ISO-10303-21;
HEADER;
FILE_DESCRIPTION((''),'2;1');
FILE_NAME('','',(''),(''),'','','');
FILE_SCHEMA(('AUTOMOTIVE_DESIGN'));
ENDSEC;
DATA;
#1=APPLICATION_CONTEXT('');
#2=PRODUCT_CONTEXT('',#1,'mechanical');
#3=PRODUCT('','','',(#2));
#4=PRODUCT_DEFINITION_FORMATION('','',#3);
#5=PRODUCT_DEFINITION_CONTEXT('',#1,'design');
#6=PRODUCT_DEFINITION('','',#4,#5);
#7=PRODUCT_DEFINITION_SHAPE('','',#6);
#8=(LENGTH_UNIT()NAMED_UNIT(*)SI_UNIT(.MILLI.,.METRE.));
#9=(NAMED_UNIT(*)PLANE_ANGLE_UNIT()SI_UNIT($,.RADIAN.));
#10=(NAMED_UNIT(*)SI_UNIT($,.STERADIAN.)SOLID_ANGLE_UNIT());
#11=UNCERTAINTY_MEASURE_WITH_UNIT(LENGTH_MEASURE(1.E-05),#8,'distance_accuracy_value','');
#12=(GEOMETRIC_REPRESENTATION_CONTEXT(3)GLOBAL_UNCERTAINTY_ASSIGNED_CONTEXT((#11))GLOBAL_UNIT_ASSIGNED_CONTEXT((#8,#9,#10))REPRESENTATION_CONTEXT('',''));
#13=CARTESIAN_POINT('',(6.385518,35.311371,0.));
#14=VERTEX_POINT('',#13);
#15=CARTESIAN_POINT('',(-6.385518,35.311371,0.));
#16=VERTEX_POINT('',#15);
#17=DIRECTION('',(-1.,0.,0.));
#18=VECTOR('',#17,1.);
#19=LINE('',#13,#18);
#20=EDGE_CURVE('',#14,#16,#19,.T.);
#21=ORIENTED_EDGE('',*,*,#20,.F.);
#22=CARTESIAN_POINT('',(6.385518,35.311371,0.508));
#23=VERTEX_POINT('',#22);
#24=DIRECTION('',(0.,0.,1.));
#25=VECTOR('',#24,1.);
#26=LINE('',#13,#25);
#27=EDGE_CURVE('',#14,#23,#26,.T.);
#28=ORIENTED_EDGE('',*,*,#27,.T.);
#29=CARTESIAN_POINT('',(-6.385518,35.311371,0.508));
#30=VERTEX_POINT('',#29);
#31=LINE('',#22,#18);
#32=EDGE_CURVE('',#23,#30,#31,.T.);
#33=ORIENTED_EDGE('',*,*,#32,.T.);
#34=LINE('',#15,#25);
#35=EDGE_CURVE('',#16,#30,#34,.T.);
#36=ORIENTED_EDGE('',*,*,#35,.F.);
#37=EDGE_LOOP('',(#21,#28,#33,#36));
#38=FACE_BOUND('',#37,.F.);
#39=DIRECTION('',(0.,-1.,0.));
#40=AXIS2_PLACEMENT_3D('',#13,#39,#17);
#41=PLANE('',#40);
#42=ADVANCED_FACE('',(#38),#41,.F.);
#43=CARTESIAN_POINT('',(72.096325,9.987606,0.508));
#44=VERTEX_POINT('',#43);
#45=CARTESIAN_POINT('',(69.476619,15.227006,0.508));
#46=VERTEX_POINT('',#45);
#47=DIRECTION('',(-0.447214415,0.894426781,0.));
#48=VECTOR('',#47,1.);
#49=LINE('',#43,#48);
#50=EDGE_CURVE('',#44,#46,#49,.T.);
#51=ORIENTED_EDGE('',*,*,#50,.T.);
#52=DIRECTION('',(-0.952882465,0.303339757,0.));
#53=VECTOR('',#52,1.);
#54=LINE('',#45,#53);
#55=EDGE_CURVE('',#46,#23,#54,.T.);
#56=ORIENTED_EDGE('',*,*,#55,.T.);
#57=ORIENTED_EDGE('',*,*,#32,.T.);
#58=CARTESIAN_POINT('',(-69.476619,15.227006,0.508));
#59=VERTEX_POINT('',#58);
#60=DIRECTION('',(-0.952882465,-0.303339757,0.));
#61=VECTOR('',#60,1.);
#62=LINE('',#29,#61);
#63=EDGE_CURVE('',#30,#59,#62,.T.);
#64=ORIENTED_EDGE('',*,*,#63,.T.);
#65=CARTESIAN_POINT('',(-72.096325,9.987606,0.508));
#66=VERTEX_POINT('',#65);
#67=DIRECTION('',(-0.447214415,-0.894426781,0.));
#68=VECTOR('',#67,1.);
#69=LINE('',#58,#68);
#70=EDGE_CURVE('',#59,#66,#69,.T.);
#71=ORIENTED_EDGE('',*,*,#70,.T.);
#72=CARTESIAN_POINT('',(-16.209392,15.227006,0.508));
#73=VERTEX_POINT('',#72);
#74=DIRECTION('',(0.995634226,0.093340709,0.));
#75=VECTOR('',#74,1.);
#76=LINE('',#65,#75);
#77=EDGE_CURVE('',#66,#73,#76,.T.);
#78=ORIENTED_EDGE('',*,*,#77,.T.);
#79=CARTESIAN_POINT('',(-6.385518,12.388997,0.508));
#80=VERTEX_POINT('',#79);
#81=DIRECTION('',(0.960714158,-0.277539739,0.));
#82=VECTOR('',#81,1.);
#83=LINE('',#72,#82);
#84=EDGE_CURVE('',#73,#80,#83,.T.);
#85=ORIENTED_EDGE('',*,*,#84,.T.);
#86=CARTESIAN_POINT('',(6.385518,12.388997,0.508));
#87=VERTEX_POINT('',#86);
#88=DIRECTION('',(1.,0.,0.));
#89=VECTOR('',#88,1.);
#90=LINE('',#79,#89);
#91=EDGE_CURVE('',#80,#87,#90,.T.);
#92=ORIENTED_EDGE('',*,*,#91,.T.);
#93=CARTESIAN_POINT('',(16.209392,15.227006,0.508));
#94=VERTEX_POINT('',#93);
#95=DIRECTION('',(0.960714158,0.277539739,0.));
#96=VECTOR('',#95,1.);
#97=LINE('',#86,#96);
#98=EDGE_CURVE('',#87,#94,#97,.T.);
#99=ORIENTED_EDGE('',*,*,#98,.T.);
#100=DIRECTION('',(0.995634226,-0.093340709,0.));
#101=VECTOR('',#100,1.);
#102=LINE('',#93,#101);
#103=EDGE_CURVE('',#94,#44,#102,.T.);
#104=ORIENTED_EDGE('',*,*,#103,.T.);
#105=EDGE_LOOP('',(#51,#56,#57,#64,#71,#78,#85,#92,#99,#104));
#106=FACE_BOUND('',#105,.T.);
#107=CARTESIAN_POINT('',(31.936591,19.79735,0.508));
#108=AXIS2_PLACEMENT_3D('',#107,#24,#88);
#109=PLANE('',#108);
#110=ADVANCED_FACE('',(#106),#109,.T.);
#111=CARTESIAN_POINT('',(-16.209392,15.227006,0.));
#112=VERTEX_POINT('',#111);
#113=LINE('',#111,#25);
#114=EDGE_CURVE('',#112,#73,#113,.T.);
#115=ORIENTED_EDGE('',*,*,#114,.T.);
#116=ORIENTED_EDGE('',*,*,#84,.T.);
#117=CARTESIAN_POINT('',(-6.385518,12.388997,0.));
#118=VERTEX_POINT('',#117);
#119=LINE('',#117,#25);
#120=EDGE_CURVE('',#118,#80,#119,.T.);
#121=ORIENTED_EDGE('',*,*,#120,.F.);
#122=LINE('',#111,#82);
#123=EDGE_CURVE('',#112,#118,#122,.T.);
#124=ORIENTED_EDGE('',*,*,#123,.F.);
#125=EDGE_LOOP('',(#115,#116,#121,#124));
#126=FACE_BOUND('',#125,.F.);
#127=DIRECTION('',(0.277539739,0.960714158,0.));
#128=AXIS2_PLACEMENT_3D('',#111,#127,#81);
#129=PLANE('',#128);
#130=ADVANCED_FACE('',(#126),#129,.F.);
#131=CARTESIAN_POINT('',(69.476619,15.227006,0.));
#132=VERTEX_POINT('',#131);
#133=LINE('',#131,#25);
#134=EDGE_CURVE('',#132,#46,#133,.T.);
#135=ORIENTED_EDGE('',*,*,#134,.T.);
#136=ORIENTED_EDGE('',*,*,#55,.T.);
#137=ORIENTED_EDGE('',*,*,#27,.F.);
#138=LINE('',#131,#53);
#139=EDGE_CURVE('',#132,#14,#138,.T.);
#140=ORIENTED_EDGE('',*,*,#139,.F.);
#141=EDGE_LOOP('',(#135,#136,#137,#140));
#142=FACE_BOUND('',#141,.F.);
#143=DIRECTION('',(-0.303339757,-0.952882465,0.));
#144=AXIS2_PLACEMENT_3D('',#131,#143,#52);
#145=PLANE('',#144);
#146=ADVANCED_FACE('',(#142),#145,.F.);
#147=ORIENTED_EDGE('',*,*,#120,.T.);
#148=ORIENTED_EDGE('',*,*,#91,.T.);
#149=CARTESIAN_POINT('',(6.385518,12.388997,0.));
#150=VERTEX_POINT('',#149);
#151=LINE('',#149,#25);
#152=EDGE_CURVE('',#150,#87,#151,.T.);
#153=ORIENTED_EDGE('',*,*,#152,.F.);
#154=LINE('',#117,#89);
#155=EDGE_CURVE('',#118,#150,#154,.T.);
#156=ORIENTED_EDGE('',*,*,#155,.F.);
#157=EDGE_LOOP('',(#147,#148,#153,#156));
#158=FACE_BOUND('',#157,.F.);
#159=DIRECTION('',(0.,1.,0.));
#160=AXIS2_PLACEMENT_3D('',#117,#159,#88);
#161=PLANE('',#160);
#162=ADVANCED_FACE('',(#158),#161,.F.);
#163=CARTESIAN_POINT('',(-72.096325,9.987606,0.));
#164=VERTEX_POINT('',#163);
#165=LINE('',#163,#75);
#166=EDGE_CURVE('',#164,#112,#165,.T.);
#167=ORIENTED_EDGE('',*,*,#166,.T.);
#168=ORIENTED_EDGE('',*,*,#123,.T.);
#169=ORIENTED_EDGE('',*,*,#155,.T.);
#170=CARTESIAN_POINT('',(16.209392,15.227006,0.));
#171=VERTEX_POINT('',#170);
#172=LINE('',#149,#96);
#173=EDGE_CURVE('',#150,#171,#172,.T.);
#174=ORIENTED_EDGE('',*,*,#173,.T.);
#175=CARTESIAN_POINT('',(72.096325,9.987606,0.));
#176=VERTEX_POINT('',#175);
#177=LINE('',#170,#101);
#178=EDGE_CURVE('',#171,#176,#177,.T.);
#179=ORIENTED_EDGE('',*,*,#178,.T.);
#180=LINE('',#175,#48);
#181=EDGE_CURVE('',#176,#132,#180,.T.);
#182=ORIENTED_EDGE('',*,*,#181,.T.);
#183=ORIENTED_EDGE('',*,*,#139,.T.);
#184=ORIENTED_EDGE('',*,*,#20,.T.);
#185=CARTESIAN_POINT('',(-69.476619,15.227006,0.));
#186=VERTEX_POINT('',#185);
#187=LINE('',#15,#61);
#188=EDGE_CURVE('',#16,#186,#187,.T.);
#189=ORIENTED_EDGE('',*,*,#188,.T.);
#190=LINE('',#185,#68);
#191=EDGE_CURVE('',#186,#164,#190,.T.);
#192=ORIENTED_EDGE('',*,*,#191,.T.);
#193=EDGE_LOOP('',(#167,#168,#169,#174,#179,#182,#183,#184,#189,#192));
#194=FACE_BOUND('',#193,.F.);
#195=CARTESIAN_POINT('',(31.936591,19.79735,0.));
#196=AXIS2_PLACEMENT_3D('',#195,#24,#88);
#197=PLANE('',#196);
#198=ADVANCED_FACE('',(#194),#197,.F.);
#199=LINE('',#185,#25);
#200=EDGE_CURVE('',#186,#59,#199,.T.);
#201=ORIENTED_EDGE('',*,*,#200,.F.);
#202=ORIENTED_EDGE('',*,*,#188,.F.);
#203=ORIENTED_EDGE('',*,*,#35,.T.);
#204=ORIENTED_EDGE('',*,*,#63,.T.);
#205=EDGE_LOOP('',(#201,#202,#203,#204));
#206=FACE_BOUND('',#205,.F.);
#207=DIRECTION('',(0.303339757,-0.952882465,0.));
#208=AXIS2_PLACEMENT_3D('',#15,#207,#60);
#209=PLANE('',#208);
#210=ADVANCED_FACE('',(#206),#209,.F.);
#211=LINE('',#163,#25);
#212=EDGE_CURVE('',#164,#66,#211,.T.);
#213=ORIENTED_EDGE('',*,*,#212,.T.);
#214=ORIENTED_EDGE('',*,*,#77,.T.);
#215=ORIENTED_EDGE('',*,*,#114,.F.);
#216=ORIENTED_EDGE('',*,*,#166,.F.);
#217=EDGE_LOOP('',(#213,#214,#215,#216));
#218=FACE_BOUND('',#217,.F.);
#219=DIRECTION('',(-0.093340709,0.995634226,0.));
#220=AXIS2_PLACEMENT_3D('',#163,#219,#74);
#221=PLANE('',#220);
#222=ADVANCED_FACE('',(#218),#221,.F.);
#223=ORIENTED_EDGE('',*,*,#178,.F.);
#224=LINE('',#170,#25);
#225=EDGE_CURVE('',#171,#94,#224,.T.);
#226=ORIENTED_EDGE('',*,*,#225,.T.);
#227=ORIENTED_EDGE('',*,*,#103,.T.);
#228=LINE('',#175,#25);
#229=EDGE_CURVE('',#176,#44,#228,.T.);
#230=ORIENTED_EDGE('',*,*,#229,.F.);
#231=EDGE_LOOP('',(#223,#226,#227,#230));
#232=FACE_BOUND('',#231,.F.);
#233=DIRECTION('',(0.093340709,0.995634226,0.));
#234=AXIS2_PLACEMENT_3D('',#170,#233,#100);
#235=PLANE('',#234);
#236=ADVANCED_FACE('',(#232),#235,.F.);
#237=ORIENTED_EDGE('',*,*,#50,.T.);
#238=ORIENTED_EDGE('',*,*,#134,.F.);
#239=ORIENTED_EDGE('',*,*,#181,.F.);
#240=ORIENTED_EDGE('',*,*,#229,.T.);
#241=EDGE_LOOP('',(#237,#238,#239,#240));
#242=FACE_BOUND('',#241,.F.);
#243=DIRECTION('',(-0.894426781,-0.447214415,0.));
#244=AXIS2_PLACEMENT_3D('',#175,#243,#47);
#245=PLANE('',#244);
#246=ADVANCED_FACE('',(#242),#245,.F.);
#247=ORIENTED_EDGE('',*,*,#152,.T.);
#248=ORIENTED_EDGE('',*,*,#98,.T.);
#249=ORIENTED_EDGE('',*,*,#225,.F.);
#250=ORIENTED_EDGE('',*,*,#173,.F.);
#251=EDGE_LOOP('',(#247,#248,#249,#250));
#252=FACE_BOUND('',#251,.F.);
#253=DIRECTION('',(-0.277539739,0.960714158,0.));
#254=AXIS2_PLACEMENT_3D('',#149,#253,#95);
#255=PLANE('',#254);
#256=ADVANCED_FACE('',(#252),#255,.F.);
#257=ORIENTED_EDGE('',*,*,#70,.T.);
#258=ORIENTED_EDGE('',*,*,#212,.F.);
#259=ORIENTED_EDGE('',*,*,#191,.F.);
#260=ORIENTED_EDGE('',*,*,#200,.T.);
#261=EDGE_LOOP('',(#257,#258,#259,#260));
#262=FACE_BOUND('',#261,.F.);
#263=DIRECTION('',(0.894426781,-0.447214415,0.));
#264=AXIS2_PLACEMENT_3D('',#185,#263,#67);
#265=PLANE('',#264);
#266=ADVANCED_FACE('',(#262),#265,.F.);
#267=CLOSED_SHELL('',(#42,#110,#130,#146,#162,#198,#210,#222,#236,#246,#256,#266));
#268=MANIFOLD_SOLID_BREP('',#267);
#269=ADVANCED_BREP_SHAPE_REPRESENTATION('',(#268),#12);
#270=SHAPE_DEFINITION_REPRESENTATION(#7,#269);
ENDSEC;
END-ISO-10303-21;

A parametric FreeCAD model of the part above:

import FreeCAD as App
import Part
import Sketcher

V = App.Vector
Q = App.Units.Quantity

doc = App.newDocument("Part")
body = doc.addObject("PartDesign::Body", "Body")

sketch1 = doc.addObject("Sketcher::SketchObject", "Sketch")
body.addObject(sketch1)
sketch1.AttachmentSupport = (doc.XY_Plane, [""])
sketch1.MapMode = "FlatFace"
sketch1.addGeometry([
    Part.LineSegment(V(6, 12, 0), V(16, 15, 0)),
    Part.LineSegment(V(16, 15, 0), V(72, 10, 0)),
    Part.LineSegment(V(72, 10, 0), V(69, 15, 0)),
    Part.LineSegment(V(69, 15, 0), V(6, 35, 0)),
    Part.LineSegment(V(6, 35, 0), V(-6, 35, 0)),
    Part.LineSegment(V(-6, 35, 0), V(-69, 15, 0)),
    Part.LineSegment(V(-69, 15, 0), V(-72, 10, 0)),
    Part.LineSegment(V(-72, 10, 0), V(-16, 15, 0)),
    Part.LineSegment(V(-16, 15, 0), V(-6, 12, 0)),
    Part.LineSegment(V(-6, 12, 0), V(6, 12, 0)),
], False)
sketch1.addConstraint([
    Sketcher.Constraint("Coincident", 0, 2, 1, 1),
    Sketcher.Constraint("Coincident", 1, 2, 2, 1),
    Sketcher.Constraint("Coincident", 2, 2, 3, 1),
    Sketcher.Constraint("Coincident", 3, 2, 4, 1),
    Sketcher.Constraint("Coincident", 4, 2, 5, 1),
    Sketcher.Constraint("Coincident", 5, 2, 6, 1),
    Sketcher.Constraint("Coincident", 6, 2, 7, 1),
    Sketcher.Constraint("Coincident", 7, 2, 8, 1),
    Sketcher.Constraint("Coincident", 8, 2, 9, 1),
    Sketcher.Constraint("Coincident", 9, 2, 0, 1),
    Sketcher.Constraint("Horizontal", 4),
    Sketcher.Constraint("Horizontal", 9),
    Sketcher.Constraint("Symmetric", 2, 2, 5, 2, -2),
    Sketcher.Constraint("Symmetric", 1, 2, 6, 2, -2),
    Sketcher.Constraint("Symmetric", 0, 2, 7, 2, -2),
    Sketcher.Constraint("Horizontal", 0, 2, 2, 2),
    Sketcher.Constraint("Vertical", 4, 2, 8, 2),
    Sketcher.Constraint("Vertical", 3, 2, 9, 2),
    Sketcher.Constraint("Equal", 3, 5),
    Sketcher.Constraint("DistanceX", -1, 1, 2, 2, Q("2.7353 in")),
    Sketcher.Constraint("DistanceY", 1, 2, 0, 2, 5.2394),
    Sketcher.Constraint("DistanceX", 3, 2, 2, 2, 63.091101),
    Sketcher.Constraint("Distance", 2, 5.85783),
    Sketcher.Constraint("Distance", 3, 66.21079),
    Sketcher.Constraint("DistanceY", -1, 1, 3, 2, 35.311371),
    Sketcher.Constraint("DistanceX", 4, 2, 0, 2, 22.59491),
    Sketcher.Constraint("DistanceY", 8, 2, 7, 2, 2.838009),
])
pad1 = doc.addObject("PartDesign::Pad", "Pad")
body.addObject(pad1)
pad1.Profile = sketch1
pad1.Length = Q("0.02 in")

doc.recompute()
